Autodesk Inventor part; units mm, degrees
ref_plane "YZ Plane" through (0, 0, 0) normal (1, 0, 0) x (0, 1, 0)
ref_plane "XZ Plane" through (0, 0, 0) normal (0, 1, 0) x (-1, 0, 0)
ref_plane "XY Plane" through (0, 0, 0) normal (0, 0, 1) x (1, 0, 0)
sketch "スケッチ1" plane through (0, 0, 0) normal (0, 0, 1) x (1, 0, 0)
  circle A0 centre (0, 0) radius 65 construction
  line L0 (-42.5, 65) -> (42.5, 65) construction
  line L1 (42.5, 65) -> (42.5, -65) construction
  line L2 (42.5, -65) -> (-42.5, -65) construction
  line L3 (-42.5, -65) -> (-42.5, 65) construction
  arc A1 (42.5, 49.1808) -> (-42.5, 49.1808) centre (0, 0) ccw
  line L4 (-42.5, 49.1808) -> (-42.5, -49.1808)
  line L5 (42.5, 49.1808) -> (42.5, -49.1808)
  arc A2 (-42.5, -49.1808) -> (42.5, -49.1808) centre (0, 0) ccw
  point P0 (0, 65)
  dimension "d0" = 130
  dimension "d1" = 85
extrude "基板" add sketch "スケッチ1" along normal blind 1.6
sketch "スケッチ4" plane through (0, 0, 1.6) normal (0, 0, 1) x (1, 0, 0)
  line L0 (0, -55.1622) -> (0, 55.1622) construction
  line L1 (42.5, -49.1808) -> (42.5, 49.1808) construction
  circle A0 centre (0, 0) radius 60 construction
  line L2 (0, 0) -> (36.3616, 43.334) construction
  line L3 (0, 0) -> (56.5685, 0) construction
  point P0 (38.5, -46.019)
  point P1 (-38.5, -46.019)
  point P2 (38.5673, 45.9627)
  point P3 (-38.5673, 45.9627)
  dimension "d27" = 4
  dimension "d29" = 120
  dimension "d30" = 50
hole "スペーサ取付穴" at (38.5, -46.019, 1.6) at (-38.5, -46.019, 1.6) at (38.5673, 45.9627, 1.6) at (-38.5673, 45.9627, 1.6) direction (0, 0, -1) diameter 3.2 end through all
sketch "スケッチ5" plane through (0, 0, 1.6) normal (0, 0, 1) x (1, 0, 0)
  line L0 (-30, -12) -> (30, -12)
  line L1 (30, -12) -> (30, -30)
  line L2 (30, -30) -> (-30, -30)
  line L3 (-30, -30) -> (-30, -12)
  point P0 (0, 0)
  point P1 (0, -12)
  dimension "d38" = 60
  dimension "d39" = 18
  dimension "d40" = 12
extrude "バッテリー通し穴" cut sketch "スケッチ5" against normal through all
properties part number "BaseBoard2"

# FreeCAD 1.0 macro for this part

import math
import FreeCAD as App
import Part
import Sketcher
from FreeCAD import Vector
Q = App.Units.Quantity


def add_polygon(sketch, points):
    """Adds a closed chain of lines whose ends are joined by coincident constraints."""
    first, n = sketch.GeometryCount, len(points)
    for a, b in zip(points, points[1:] + points[:1]):
        sketch.addGeometry(Part.LineSegment(App.Vector(*a, 0), App.Vector(*b, 0)), False)
    for i in range(n):
        sketch.addConstraint(Sketcher.Constraint("Coincident", first + i, 2, first + (i + 1) % n, 1))

doc = App.newDocument("Part")
body = doc.addObject("PartDesign::Body", "Body")

sketch1 = body.newObject("Sketcher::SketchObject", "Sketch")
sketch1.AttachmentSupport = (doc.getObject("XY_Plane"), [""])
sketch1.MapMode = "FlatFace"
sketch1.addGeometry([
    Part.LineSegment(Vector(42, -49, 0), Vector(42, 49, 0)),
    Part.ArcOfCircle(Part.Circle(Vector(0, 0, 0), Vector(0, 0, 1), 65), math.radians(49), math.radians(131)),
    Part.LineSegment(Vector(-42, 49, 0), Vector(-42, -49, 0)),
    Part.ArcOfCircle(Part.Circle(Vector(0, 0, 0), Vector(0, 0, 1), 65), math.radians(-131), math.radians(-49)),
], False)
sketch1.addConstraint([
    Sketcher.Constraint("Coincident", 0, 2, 1, 1),
    Sketcher.Constraint("Coincident", 1, 2, 2, 1),
    Sketcher.Constraint("Coincident", 2, 2, 3, 1),
    Sketcher.Constraint("Coincident", 3, 2, 0, 1),
    Sketcher.Constraint("Vertical", 0),
    Sketcher.Constraint("Vertical", 2),
    Sketcher.Constraint("Coincident", 1, 3, -1, 1),
    Sketcher.Constraint("Coincident", 3, 3, -1, 1),
    Sketcher.Constraint("Equal", 1, 3),
    Sketcher.Constraint("Horizontal", 0, 2, 1, 2),
    Sketcher.Constraint("Radius", 1, Q("65 mm")),
    Sketcher.Constraint("DistanceX", 1, 2, 0, 2, Q("85 mm")),
])
pad1 = body.newObject("PartDesign::Pad", "Pad")
pad1.Profile = sketch1
pad1.Length = 1.6

sketch2 = body.newObject("Sketcher::SketchObject", "Sketch001")
sketch2.AttachmentSupport = (doc.getObject("XY_Plane"), [""])
sketch2.MapMode = "FlatFace"
sketch2.AttachmentOffset = App.Placement(Vector(0, 0, 1.6), App.Rotation())
sketch2.addGeometry([
    Part.Circle(Vector(38.5, -46, 0), Vector(0, 0, 1), 1.6),
    Part.Circle(Vector(-38.5, -46, 0), Vector(0, 0, 1), 1.6),
    Part.Circle(Vector(38.6, 46, 0), Vector(0, 0, 1), 1.6),
    Part.Circle(Vector(-38.6, 46, 0), Vector(0, 0, 1), 1.6),
], False)
sketch2.addConstraint([
    Sketcher.Constraint("Equal", 0, 1),
    Sketcher.Constraint("Equal", 1, 2),
    Sketcher.Constraint("Equal", 2, 3),
    Sketcher.Constraint("Symmetric", 0, 3, 1, 3, -2),
    Sketcher.Constraint("Symmetric", 2, 3, 3, 3, -2),
    Sketcher.Constraint("Diameter", 0, Q("3.2 mm")),
    Sketcher.Constraint("DistanceX", 1, 3, 0, 3, Q("77 mm")),
    Sketcher.Constraint("DistanceY", 0, 3, -1, 1, Q("46.019 mm")),
    Sketcher.Constraint("DistanceX", -1, 1, 2, 3, Q("38.5673 mm")),
    Sketcher.Constraint("DistanceY", -1, 1, 2, 3, Q("45.9627 mm")),
])
doc.recompute()
hole = body.newObject("PartDesign::Hole", "Hole")
hole.Profile = sketch2
hole.ThreadType = "None"
hole.Diameter = 3.2
hole.DepthType = "ThroughAll"

sketch3 = body.newObject("Sketcher::SketchObject", "Sketch002")
sketch3.AttachmentSupport = (doc.getObject("XY_Plane"), [""])
sketch3.MapMode = "FlatFace"
sketch3.AttachmentOffset = App.Placement(Vector(0, 0, 1.6), App.Rotation())
add_polygon(sketch3, [(30, -12), (-30, -12), (-30, -30), (30, -30)])
sketch3.addConstraint([
    Sketcher.Constraint("Horizontal", 0),
    Sketcher.Constraint("Vertical", 1),
    Sketcher.Constraint("Horizontal", 2),
    Sketcher.Constraint("Vertical", 3),
    Sketcher.Constraint("DistanceX", 0, 2, 0, 1, Q("60 mm")),
    Sketcher.Constraint("DistanceY", 1, 2, 1, 1, Q("18 mm")),
    Sketcher.Constraint("DistanceY", 0, 2, -1, 1, Q("12 mm")),
    Sketcher.Constraint("DistanceX", 0, 2, -1, 1, Q("30 mm")),
])
pocket1 = body.newObject("PartDesign::Pocket", "Pocket")
pocket1.Profile = sketch3
pocket1.Type = "ThroughAll"

doc.recompute()
